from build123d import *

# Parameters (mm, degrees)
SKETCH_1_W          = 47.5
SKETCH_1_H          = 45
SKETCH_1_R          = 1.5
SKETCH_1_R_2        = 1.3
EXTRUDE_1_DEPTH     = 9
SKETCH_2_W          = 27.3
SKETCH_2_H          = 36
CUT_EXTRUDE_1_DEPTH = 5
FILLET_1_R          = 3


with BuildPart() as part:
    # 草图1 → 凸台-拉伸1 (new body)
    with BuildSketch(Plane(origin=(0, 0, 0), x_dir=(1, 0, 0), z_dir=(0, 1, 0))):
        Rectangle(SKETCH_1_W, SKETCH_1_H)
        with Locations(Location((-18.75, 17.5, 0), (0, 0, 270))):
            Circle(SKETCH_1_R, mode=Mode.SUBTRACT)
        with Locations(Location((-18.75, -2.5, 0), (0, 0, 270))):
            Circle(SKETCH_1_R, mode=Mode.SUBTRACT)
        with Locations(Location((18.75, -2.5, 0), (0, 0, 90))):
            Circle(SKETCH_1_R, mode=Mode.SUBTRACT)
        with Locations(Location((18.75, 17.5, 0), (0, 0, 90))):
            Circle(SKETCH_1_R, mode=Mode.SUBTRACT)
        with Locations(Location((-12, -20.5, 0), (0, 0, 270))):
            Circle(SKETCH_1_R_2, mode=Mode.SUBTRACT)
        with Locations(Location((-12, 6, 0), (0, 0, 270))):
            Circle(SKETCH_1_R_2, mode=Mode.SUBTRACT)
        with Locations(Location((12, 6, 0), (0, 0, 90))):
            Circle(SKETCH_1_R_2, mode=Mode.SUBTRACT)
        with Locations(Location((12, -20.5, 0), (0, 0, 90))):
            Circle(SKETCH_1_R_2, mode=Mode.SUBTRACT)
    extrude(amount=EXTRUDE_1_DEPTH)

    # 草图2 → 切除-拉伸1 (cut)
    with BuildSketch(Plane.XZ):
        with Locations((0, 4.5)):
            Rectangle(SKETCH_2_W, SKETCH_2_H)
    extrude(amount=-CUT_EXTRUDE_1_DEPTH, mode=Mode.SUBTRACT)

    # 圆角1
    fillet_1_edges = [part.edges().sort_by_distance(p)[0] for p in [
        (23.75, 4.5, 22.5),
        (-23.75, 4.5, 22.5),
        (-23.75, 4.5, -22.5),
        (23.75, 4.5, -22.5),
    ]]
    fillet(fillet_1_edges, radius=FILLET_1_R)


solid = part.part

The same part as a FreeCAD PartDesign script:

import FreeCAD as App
import Part
import Sketcher


def edges_at(feature, points):
    """Names of the edges that pass closest to the given points."""
    edges = feature.Shape.Edges
    near = lambda p: min(range(len(edges)), key=lambda i: edges[i].distToShape(Part.Vertex(*p))[0])
    return sorted({f"Edge{near(p) + 1}" for p in points})


def add_polygon(sketch, points):
    """Adds a closed chain of lines whose ends are joined by coincident constraints."""
    first, n = sketch.GeometryCount, len(points)
    for a, b in zip(points, points[1:] + points[:1]):
        sketch.addGeometry(Part.LineSegment(App.Vector(*a, 0), App.Vector(*b, 0)), False)
    for i in range(n):
        sketch.addConstraint(Sketcher.Constraint("Coincident", first + i, 2, first + (i + 1) % n, 1))

doc = App.newDocument("Part")
body = doc.addObject("PartDesign::Body", "Body")

sketch1 = doc.addObject("Sketcher::SketchObject", "Sketch")
body.addObject(sketch1)
sketch1.AttachmentSupport = (doc.XZ_Plane, [""])
sketch1.MapMode = "FlatFace"
add_polygon(sketch1, [(-23.8, -22.5), (-23.8, 22.5), (23.8, 22.5), (23.8, -22.5)])
sketch1.addGeometry(Part.Circle(App.Vector(-12, 20.5, 0), App.Vector(0, 0, 1), 1.3), False)
sketch1.addGeometry(Part.Circle(App.Vector(-18.8, 2.5, 0), App.Vector(0, 0, 1), 1.5), False)
sketch1.addGeometry(Part.Circle(App.Vector(12, 20.5, 0), App.Vector(0, 0, 1), 1.3), False)
sketch1.addGeometry(Part.Circle(App.Vector(18.8, 2.5, 0), App.Vector(0, 0, 1), 1.5), False)
sketch1.addGeometry(Part.Circle(App.Vector(-12, -6, 0), App.Vector(0, 0, 1), 1.3), False)
sketch1.addGeometry(Part.Circle(App.Vector(-18.8, -17.5, 0), App.Vector(0, 0, 1), 1.5), False)
sketch1.addGeometry(Part.Circle(App.Vector(12, -6, 0), App.Vector(0, 0, 1), 1.3), False)
sketch1.addGeometry(Part.Circle(App.Vector(18.8, -17.5, 0), App.Vector(0, 0, 1), 1.5), False)
sketch1.addConstraint([
    Sketcher.Constraint("Vertical", 0),
    Sketcher.Constraint("Horizontal", 1),
    Sketcher.Constraint("Vertical", 2),
    Sketcher.Constraint("Horizontal", 3),
    Sketcher.Constraint("Equal", 4, 6),
    Sketcher.Constraint("Equal", 5, 7),
    Sketcher.Constraint("Equal", 6, 8),
    Sketcher.Constraint("Equal", 7, 9),
    Sketcher.Constraint("Equal", 8, 10),
    Sketcher.Constraint("Equal", 9, 11),
    Sketcher.Constraint("Symmetric", 0, 2, 2, 2, -1, 1),
    Sketcher.Constraint("Symmetric", 4, 3, 6, 3, -2),
    Sketcher.Constraint("Symmetric", 5, 3, 7, 3, -2),
    Sketcher.Constraint("Symmetric", 8, 3, 10, 3, -2),
    Sketcher.Constraint("Symmetric", 9, 3, 11, 3, -2),
    Sketcher.Constraint("Vertical", 4, 3, 8, 3),
    Sketcher.Constraint("Vertical", 5, 3, 9, 3),
    Sketcher.Constraint("Diameter", 5, 3.0),
    Sketcher.Constraint("Diameter", 4, 2.6),
    Sketcher.Constraint("DistanceY", 0, 1, 0, 2, 45.0),
    Sketcher.Constraint("DistanceX", 1, 1, 1, 2, 47.5),
    Sketcher.Constraint("DistanceX", 4, 3, -1, 1, 12.0),
    Sketcher.Constraint("DistanceY", 8, 3, -1, 1, 6.0),
    Sketcher.Constraint("DistanceY", 5, 3, 4, 3, 18.0),
    Sketcher.Constraint("DistanceY", 9, 3, 5, 3, 20.0),
    Sketcher.Constraint("DistanceY", 4, 3, 0, 2, 2.0),
    Sketcher.Constraint("DistanceX", 0, 2, 5, 3, 5.0),
])
pad1 = doc.addObject("PartDesign::Pad", "Pad")
body.addObject(pad1)
pad1.Profile = sketch1
pad1.Length = 9
pad1.Reversed = True

sketch2 = doc.addObject("Sketcher::SketchObject", "Sketch001")
body.addObject(sketch2)
sketch2.AttachmentSupport = (doc.XZ_Plane, [""])
sketch2.MapMode = "FlatFace"
add_polygon(sketch2, [(-14, 22), (-14, -14), (14, -14), (14, 22)])
sketch2.addConstraint([
    Sketcher.Constraint("Vertical", 0),
    Sketcher.Constraint("Horizontal", 1),
    Sketcher.Constraint("Vertical", 2),
    Sketcher.Constraint("Horizontal", 3),
    Sketcher.Constraint("DistanceY", 0, 2, 0, 1, 36.0),
    Sketcher.Constraint("DistanceX", 1, 1, 1, 2, 27.3),
    Sketcher.Constraint("DistanceY", 0, 2, -1, 1, 13.5),
    Sketcher.Constraint("DistanceX", 0, 2, -1, 1, 13.65),
])
pocket1 = doc.addObject("PartDesign::Pocket", "Pocket")
body.addObject(pocket1)
pocket1.Profile = sketch2
pocket1.Length = 5
doc.recompute()

fillet = doc.addObject("PartDesign::Fillet", "Fillet")
body.addObject(fillet)
fillet.Base = (pocket1, edges_at(pocket1, [
    (23.75, 4.5, 22.5),
    (-23.75, 4.5, 22.5),
    (-23.75, 4.5, -22.5),
    (23.75, 4.5, -22.5),
]))
fillet.Radius = 3

doc.recompute()
